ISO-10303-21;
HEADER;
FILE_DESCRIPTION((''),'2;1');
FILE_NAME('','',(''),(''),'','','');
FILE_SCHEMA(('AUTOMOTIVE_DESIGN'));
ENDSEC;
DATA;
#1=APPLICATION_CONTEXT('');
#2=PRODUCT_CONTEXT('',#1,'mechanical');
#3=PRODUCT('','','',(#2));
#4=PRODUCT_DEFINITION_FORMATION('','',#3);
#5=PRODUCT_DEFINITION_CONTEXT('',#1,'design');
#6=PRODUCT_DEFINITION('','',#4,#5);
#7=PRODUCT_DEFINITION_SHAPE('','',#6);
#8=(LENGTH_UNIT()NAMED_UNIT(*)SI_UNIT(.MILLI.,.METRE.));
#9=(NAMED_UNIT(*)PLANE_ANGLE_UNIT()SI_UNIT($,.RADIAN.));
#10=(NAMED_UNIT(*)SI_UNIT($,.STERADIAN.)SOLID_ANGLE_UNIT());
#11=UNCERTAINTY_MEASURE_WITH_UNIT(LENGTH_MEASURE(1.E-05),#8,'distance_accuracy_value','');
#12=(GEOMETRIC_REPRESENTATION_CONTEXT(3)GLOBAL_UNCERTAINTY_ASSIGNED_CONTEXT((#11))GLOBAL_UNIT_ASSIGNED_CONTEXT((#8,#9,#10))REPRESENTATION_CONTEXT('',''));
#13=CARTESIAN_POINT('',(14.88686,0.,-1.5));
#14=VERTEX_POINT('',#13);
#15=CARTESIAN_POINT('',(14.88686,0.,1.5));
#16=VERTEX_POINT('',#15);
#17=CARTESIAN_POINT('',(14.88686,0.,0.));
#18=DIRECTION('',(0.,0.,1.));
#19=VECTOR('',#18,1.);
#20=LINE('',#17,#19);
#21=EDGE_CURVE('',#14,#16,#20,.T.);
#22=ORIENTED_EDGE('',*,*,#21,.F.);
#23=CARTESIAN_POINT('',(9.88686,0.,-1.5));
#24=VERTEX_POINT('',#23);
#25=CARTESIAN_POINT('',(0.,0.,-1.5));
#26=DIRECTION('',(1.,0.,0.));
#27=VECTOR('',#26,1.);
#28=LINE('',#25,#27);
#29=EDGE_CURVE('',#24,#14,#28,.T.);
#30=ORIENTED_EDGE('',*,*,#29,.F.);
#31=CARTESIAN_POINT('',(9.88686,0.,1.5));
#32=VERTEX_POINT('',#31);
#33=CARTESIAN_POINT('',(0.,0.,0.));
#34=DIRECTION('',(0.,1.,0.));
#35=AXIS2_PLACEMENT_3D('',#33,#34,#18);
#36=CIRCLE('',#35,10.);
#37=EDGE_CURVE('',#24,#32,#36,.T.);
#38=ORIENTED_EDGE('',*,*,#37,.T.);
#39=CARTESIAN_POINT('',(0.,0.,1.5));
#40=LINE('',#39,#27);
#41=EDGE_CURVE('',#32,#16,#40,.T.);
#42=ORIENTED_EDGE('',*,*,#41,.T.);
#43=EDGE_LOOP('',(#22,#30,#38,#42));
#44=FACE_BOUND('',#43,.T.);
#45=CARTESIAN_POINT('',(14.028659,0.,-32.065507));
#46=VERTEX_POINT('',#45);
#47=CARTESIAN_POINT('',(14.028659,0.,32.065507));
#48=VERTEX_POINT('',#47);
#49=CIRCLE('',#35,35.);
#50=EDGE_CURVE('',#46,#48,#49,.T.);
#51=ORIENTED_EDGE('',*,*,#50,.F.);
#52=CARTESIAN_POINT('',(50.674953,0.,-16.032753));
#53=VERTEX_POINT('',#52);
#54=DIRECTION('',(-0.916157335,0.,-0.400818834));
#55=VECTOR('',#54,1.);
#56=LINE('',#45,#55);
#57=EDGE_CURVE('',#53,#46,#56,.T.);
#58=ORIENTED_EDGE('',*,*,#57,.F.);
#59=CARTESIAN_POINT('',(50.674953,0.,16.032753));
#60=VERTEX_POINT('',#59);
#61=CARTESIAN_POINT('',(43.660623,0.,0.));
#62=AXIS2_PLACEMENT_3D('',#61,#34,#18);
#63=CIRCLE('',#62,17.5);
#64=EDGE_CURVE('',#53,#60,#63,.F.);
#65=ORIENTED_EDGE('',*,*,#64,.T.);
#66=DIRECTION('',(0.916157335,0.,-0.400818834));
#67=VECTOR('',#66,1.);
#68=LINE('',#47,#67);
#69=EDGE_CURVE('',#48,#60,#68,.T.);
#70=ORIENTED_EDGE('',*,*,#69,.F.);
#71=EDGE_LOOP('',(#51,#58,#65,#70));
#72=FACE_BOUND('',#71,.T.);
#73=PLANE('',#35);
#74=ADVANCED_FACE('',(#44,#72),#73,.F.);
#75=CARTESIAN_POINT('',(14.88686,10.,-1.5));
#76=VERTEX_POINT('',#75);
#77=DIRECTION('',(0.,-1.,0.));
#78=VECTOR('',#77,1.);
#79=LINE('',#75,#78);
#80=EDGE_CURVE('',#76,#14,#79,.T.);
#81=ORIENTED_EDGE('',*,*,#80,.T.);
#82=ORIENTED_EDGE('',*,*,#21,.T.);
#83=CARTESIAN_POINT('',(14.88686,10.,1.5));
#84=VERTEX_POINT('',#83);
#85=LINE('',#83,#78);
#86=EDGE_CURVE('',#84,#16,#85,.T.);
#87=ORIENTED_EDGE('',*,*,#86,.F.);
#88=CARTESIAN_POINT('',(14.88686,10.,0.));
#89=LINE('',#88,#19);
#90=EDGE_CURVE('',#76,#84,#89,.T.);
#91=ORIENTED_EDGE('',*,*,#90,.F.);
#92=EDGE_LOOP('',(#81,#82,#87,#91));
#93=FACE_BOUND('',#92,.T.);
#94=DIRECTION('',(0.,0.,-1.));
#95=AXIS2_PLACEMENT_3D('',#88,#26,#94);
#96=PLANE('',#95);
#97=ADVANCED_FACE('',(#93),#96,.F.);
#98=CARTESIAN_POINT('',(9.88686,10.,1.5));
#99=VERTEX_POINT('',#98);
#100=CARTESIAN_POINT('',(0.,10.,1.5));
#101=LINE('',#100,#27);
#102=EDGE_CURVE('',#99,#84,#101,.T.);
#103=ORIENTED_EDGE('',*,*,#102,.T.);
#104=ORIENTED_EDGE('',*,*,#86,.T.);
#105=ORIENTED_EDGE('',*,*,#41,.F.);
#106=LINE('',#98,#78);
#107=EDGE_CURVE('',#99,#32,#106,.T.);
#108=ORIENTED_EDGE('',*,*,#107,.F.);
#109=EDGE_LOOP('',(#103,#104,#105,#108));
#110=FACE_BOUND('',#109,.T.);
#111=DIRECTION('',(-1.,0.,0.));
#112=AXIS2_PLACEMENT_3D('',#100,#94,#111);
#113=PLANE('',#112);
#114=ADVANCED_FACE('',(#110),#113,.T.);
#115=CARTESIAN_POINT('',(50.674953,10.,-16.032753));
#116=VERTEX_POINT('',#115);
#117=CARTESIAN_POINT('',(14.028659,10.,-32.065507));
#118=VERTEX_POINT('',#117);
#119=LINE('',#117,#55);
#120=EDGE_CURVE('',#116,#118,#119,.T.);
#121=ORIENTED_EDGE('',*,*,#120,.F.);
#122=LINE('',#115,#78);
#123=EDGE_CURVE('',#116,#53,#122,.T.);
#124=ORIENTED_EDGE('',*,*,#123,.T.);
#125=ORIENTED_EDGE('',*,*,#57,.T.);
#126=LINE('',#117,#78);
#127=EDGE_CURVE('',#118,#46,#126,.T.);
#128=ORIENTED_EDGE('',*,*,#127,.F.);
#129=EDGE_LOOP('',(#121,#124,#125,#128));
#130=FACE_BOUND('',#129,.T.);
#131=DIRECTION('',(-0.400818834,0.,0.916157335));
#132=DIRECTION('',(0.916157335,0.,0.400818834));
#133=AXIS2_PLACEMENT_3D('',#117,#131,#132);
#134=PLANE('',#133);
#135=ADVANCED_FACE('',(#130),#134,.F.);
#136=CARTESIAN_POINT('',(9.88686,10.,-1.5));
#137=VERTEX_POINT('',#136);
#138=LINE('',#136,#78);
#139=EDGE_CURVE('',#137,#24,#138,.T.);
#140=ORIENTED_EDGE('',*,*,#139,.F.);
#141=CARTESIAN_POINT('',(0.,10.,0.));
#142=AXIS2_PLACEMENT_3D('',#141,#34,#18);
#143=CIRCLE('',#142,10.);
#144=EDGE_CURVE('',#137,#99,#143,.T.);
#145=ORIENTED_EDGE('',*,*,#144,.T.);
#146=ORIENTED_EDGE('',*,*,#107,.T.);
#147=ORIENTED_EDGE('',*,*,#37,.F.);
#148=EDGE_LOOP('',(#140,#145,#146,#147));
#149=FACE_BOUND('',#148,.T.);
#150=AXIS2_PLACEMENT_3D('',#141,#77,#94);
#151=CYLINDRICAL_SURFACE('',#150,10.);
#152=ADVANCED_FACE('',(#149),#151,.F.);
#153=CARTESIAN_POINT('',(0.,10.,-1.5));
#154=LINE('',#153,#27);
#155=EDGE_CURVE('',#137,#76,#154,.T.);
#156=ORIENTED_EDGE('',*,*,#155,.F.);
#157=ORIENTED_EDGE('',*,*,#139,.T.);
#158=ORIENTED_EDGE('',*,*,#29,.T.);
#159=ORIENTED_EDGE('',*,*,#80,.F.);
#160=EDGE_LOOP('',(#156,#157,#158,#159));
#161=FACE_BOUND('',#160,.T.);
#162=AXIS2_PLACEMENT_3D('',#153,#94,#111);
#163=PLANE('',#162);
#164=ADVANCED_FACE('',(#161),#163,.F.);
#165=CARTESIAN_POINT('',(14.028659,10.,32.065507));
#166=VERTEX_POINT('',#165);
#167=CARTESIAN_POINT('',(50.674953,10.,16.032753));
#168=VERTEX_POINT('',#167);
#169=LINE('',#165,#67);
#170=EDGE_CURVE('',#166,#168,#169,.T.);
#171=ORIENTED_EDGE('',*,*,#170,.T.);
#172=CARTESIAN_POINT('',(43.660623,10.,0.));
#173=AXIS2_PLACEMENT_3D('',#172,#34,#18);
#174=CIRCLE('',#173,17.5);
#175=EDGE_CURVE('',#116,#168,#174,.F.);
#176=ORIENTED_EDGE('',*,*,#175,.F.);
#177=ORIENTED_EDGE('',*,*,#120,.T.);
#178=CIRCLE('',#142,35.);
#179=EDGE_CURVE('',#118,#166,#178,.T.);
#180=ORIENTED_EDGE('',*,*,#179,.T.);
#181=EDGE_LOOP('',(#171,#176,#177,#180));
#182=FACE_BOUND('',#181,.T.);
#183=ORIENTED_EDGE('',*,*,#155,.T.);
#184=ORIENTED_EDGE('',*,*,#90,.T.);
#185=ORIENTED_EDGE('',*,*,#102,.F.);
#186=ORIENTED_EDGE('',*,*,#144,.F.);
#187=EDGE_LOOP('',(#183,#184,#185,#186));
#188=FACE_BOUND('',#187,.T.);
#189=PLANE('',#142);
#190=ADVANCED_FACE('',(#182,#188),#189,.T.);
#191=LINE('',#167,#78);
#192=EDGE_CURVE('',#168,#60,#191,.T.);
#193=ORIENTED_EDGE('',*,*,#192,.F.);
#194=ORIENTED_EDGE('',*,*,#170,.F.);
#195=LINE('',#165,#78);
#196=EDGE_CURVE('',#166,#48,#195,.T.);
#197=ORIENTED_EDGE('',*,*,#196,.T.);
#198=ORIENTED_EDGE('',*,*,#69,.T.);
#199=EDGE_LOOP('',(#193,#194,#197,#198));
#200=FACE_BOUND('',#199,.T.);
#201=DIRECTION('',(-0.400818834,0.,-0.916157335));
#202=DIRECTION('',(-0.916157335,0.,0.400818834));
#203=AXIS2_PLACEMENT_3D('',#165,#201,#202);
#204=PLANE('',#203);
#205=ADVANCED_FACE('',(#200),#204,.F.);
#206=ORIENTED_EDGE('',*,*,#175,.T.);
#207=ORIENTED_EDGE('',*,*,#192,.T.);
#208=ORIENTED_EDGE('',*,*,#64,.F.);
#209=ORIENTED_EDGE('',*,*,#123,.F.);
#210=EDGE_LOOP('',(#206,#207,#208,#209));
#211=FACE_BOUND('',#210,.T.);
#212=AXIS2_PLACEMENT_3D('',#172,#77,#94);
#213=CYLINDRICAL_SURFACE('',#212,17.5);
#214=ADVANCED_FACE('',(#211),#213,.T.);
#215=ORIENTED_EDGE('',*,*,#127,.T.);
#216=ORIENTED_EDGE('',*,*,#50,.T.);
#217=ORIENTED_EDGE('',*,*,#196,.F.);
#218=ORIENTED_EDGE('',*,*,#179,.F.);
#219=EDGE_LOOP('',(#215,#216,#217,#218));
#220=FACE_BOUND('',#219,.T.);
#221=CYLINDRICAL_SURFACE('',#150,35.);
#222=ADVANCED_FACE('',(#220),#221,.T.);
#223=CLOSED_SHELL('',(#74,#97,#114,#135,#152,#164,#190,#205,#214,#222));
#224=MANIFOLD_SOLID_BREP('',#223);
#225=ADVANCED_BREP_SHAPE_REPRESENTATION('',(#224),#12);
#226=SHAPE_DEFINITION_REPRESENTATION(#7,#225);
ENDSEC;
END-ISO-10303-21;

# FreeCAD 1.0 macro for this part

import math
import FreeCAD as App
import Part
import Sketcher

V = App.Vector

doc = App.newDocument("Part")
body = doc.addObject("PartDesign::Body", "Body")

# Sketch on XZ plane
sketch1 = body.newObject("Sketcher::SketchObject", "Sketch")
sketch1.AttachmentSupport = (doc.getObject("XZ_Plane"), [""])
sketch1.MapMode = "FlatFace"
sketch1.addGeometry([
    Part.ArcOfCircle(Part.Circle(V(0, 0, 0), V(0, 0, 1), 35), math.radians(66.370622), math.radians(293.629378)),  # 0
    Part.LineSegment(V(14.028659, 32.065507, 0), V(50.674953, 16.032753, 0)),  # 1
    Part.ArcOfCircle(Part.Circle(V(43.660623, 0, 0), V(0, 0, 1), 17.5), math.radians(-66.370622), math.radians(66.370622)),  # 2
    Part.LineSegment(V(50.674953, -16.032753, 0), V(14.028659, -32.065507, 0)),  # 3
    Part.ArcOfCircle(Part.Circle(V(0, 0, 0), V(0, 0, 1), 10), math.radians(8.626927), math.radians(351.373073)),  # 4
    Part.LineSegment(V(9.88686, -1.5, 0), V(14.88686, -1.5, 0)),  # 5
    Part.LineSegment(V(14.88686, -1.5, 0), V(14.88686, 1.5, 0)),  # 6
    Part.LineSegment(V(14.88686, 1.5, 0), V(9.88686, 1.5, 0)),  # 7
], False)
sketch1.addConstraint([
    Sketcher.Constraint("Tangent", 0, 1, 1, 1),
    Sketcher.Constraint("Tangent", 1, 2, 2, 2),
    Sketcher.Constraint("Tangent", 2, 1, 3, 1),
    Sketcher.Constraint("Tangent", 3, 2, 0, 2),
    Sketcher.Constraint("Coincident", 4, 2, 5, 1),
    Sketcher.Constraint("Coincident", 5, 2, 6, 1),
    Sketcher.Constraint("Coincident", 6, 2, 7, 1),
    Sketcher.Constraint("Coincident", 7, 2, 4, 1),
    Sketcher.Constraint("Horizontal", 5),
    Sketcher.Constraint("Vertical", 6),
    Sketcher.Constraint("Horizontal", 7),
    Sketcher.Constraint("Coincident", 0, 3, -1, 1),
    Sketcher.Constraint("Coincident", 4, 3, -1, 1),
    Sketcher.Constraint("PointOnObject", 2, 3, -1),
    Sketcher.Constraint("Vertical", 4, 2, 7, 2),
    Sketcher.Constraint("Radius", 0, 35.0),
    Sketcher.Constraint("Radius", 4, 10.0),
    Sketcher.Constraint("Radius", 2, 17.5),
    Sketcher.Constraint("DistanceX", 5, 1, 5, 2, 5.0),
    Sketcher.Constraint("DistanceY", 6, 1, 6, 2, 3.0),
    Sketcher.Constraint("Distance", 1, 40.0),
])
pad1 = body.newObject("PartDesign::Pad", "Pad")
pad1.Profile = sketch1
pad1.Length = 10
pad1.Reversed = True

doc.recompute()
